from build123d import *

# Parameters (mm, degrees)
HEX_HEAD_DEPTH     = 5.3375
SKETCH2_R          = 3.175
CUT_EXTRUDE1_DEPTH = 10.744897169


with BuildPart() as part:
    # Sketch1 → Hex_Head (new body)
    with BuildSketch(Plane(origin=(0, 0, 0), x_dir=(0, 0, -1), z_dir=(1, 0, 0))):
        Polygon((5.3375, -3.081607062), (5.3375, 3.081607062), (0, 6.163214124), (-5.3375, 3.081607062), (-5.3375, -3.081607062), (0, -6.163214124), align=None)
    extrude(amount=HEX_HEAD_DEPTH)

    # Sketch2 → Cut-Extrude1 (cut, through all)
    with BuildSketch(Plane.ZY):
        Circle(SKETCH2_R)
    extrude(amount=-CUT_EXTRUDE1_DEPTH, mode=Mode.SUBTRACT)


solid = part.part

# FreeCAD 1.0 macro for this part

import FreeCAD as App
import Part
import Sketcher
from FreeCAD import Vector
Q = App.Units.Quantity

doc = App.newDocument("Part")
body = doc.addObject("PartDesign::Body", "Body")

sketch1 = body.newObject("Sketcher::SketchObject", "Sketch")
sketch1.AttachmentSupport = (doc.getObject("YZ_Plane"), [""])
sketch1.MapMode = "FlatFace"
sketch1.addGeometry(Part.LineSegment(Vector(-3, -5, 0), Vector(3, -5, 0)), False)
sketch1.addGeometry(Part.LineSegment(Vector(3, -5, 0), Vector(6, 0, 0)), False)
sketch1.addGeometry(Part.LineSegment(Vector(6, 0, 0), Vector(3, 5, 0)), False)
sketch1.addGeometry(Part.LineSegment(Vector(3, 5, 0), Vector(-3, 5, 0)), False)
sketch1.addGeometry(Part.LineSegment(Vector(-3, 5, 0), Vector(-6, 0, 0)), False)
sketch1.addGeometry(Part.LineSegment(Vector(-6, 0, 0), Vector(-3, -5, 0)), False)
sketch1.addConstraint(Sketcher.Constraint("Coincident", 0, 2, 1, 1))
sketch1.addConstraint(Sketcher.Constraint("Coincident", 1, 2, 2, 1))
sketch1.addConstraint(Sketcher.Constraint("Coincident", 2, 2, 3, 1))
sketch1.addConstraint(Sketcher.Constraint("Coincident", 3, 2, 4, 1))
sketch1.addConstraint(Sketcher.Constraint("Coincident", 4, 2, 5, 1))
sketch1.addConstraint(Sketcher.Constraint("Coincident", 5, 2, 0, 1))
sketch1.addConstraint(Sketcher.Constraint("Horizontal", 0))
sketch1.addConstraint(Sketcher.Constraint("Horizontal", 3))
sketch1.addConstraint(Sketcher.Constraint("Symmetric", 0, 2, 3, 2, -1, 1))
sketch1.addConstraint(Sketcher.Constraint("Symmetric", 1, 2, 4, 2, -1, 1))
sketch1.addConstraint(Sketcher.Constraint("PointOnObject", 1, 2, -1))
sketch1.addConstraint(Sketcher.Constraint("Parallel", 2, 5))
sketch1.addConstraint(Sketcher.Constraint("Vertical", 0, 2, 2, 2))
sketch1.addConstraint(Sketcher.Constraint("Angle", 1, Q("60 deg")))
sketch1.addConstraint(Sketcher.Constraint("DistanceY", 0, 2, -1, 1, Q("5.3375 mm")))
sketch1.addConstraint(Sketcher.Constraint("DistanceX", 0, 1, 0, 2, Q("6.163214 mm")))
pad1 = body.newObject("PartDesign::Pad", "Pad")
pad1.Profile = sketch1
pad1.Length = 5.3375

sketch2 = body.newObject("Sketcher::SketchObject", "Sketch001")
sketch2.AttachmentSupport = (doc.getObject("YZ_Plane"), [""])
sketch2.MapMode = "FlatFace"
sketch2.addGeometry(Part.Circle(Vector(0, 0, 0), Vector(0, 0, 1), 3.2), False)
sketch2.addConstraint(Sketcher.Constraint("Coincident", 0, 3, -1, 1))
sketch2.addConstraint(Sketcher.Constraint("Diameter", 0, Q("0.25 in")))
pocket1 = body.newObject("PartDesign::Pocket", "Pocket")
pocket1.Profile = sketch2
pocket1.Type = "ThroughAll"
pocket1.Reversed = True

doc.recompute()
